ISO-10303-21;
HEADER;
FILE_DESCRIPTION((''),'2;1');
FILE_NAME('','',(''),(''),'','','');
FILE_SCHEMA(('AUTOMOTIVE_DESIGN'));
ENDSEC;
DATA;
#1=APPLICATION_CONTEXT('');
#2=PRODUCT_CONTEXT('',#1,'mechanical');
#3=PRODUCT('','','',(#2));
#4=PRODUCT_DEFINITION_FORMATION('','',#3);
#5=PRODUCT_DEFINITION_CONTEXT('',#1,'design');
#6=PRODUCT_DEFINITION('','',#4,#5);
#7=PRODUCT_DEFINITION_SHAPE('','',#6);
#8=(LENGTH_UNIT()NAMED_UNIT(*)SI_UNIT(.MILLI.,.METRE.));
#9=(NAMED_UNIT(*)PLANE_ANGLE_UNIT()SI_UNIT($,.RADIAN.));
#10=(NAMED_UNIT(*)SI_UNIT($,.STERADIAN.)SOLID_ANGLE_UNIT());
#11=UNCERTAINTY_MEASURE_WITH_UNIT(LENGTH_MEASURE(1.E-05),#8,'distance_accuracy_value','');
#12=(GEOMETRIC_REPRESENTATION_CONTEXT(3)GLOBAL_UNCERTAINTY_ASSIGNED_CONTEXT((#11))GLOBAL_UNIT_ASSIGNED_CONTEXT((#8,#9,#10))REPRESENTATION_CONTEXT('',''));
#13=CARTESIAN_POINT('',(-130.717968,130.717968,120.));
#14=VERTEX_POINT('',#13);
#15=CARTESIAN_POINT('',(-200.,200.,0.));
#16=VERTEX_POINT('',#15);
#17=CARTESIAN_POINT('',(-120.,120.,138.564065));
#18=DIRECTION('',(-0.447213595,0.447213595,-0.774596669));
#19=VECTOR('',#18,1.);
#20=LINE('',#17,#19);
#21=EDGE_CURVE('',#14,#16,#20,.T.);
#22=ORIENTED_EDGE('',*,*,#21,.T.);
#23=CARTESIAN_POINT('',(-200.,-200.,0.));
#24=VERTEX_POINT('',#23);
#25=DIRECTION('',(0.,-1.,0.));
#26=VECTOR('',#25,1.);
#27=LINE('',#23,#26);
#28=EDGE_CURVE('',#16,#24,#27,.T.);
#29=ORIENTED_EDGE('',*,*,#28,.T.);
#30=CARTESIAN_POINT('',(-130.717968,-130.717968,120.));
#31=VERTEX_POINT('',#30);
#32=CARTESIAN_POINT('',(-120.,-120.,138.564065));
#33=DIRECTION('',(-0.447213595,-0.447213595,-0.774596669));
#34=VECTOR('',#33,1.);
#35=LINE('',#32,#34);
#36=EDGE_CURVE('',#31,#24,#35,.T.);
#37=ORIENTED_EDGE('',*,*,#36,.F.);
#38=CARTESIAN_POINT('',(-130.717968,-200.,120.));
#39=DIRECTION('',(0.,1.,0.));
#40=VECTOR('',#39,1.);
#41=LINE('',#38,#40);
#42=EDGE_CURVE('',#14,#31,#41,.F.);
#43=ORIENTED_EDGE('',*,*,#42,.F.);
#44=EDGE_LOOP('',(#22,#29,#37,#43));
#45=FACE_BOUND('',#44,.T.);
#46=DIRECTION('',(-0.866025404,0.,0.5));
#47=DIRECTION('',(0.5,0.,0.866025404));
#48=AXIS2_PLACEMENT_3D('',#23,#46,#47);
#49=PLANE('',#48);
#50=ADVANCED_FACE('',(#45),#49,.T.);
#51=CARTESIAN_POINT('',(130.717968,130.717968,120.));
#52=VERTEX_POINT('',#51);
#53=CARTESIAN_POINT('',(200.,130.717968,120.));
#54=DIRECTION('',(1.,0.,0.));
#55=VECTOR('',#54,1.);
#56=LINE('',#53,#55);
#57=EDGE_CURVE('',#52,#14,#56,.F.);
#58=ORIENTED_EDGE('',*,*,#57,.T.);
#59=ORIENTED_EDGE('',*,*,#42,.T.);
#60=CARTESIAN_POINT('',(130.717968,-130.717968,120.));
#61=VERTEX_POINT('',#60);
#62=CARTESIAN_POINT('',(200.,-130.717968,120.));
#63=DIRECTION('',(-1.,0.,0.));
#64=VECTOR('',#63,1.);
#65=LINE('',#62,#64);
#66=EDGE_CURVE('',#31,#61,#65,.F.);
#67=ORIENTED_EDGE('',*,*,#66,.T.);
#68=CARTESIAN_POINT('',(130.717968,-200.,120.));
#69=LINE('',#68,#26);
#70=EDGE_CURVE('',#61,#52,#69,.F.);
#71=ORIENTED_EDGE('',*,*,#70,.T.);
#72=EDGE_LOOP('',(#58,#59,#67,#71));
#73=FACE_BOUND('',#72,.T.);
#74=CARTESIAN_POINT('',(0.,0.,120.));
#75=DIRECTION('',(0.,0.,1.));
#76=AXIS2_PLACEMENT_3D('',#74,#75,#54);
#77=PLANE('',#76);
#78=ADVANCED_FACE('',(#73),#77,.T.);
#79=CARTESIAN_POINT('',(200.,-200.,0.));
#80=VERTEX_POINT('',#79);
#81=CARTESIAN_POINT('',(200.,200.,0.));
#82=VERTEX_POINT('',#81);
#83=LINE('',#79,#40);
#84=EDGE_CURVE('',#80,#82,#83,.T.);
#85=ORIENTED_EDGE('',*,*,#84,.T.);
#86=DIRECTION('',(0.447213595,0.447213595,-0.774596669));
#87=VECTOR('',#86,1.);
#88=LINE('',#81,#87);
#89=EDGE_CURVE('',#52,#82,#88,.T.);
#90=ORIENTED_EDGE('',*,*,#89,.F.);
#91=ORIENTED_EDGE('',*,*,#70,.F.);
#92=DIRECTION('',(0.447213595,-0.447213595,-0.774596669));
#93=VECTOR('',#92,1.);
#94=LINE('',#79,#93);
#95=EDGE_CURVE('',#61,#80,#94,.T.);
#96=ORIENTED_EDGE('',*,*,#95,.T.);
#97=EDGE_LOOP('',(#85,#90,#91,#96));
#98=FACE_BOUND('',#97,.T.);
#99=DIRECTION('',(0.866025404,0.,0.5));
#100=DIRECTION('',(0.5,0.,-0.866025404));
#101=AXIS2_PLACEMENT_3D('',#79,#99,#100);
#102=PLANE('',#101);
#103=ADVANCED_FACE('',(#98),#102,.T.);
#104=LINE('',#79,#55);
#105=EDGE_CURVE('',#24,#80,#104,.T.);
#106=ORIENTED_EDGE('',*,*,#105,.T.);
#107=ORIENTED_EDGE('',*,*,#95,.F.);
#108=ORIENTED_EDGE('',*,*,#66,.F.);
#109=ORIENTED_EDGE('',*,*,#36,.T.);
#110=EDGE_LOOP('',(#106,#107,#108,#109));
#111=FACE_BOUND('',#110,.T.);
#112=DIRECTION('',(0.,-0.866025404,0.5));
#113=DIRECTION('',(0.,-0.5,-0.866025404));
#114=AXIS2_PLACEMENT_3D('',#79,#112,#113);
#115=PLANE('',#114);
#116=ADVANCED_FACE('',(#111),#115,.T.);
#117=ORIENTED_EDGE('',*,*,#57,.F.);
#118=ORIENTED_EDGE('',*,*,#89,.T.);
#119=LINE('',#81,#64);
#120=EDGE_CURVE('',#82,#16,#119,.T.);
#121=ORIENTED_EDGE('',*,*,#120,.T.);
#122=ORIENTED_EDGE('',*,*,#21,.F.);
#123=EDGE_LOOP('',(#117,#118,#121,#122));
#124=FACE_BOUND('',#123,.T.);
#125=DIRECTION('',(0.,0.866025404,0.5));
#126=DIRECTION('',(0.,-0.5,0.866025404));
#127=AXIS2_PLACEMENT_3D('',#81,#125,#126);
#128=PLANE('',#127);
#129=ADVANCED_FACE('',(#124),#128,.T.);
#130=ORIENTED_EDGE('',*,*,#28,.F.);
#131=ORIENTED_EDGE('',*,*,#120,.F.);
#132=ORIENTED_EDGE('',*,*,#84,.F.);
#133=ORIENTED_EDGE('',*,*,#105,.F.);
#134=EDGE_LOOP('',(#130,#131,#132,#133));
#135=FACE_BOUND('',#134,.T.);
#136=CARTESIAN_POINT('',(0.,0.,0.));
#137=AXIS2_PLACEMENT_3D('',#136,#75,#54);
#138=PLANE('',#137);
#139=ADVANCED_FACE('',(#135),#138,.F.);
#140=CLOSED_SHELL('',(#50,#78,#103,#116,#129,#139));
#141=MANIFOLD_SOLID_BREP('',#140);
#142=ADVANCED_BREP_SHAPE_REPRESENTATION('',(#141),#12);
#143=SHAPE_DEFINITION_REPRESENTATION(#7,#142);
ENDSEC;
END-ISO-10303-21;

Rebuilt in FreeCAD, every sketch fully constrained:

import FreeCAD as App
import Part
import Sketcher

V = App.Vector
Q = App.Units.Quantity

doc = App.newDocument("Part")
body = doc.addObject("PartDesign::Body", "Body")

sketch1 = body.newObject("Sketcher::SketchObject", "Sketch")
sketch1.AttachmentSupport = (doc.getObject("XY_Plane"), [""])
sketch1.MapMode = "FlatFace"
sketch1.addGeometry(Part.LineSegment(V(-200, 200, 0), V(-200, -200, 0)), False)
sketch1.addGeometry(Part.LineSegment(V(-200, -200, 0), V(200, -200, 0)), False)
sketch1.addGeometry(Part.LineSegment(V(200, -200, 0), V(200, 200, 0)), False)
sketch1.addGeometry(Part.LineSegment(V(200, 200, 0), V(-200, 200, 0)), False)
sketch1.addConstraint(Sketcher.Constraint("Coincident", 0, 2, 1, 1))
sketch1.addConstraint(Sketcher.Constraint("Coincident", 1, 2, 2, 1))
sketch1.addConstraint(Sketcher.Constraint("Coincident", 2, 2, 3, 1))
sketch1.addConstraint(Sketcher.Constraint("Coincident", 3, 2, 0, 1))
sketch1.addConstraint(Sketcher.Constraint("Vertical", 0))
sketch1.addConstraint(Sketcher.Constraint("Horizontal", 1))
sketch1.addConstraint(Sketcher.Constraint("Vertical", 2))
sketch1.addConstraint(Sketcher.Constraint("Horizontal", 3))
sketch1.addConstraint(Sketcher.Constraint("Symmetric", 0, 2, 2, 2, -1, 1))
sketch1.addConstraint(Sketcher.Constraint("Equal", 3, 0))
sketch1.addConstraint(Sketcher.Constraint("DistanceX", 1, 1, 1, 2, Q("400 mm")))
pad1 = body.newObject("PartDesign::Pad", "Pad")
pad1.Profile = sketch1
pad1.Length = 120
pad1.TaperAngle = -30

doc.recompute()
